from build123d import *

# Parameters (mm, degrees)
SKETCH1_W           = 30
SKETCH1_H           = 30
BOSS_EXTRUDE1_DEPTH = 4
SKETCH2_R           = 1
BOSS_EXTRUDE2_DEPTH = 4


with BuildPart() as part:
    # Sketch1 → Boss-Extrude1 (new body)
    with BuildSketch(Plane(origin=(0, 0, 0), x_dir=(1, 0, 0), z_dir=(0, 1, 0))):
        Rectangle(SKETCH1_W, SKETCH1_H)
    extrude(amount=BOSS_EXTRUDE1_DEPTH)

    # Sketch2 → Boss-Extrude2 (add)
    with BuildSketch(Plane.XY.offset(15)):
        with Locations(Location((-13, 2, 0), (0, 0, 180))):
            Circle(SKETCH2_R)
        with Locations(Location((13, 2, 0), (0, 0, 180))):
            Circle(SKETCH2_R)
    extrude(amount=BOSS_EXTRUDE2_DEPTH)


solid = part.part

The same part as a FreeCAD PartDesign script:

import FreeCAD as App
import Part
import Sketcher
from FreeCAD import Vector


def add_polygon(sketch, points):
    """Adds a closed chain of lines whose ends are joined by coincident constraints."""
    first, n = sketch.GeometryCount, len(points)
    for a, b in zip(points, points[1:] + points[:1]):
        sketch.addGeometry(Part.LineSegment(App.Vector(*a, 0), App.Vector(*b, 0)), False)
    for i in range(n):
        sketch.addConstraint(Sketcher.Constraint("Coincident", first + i, 2, first + (i + 1) % n, 1))

doc = App.newDocument("Part")
body = doc.addObject("PartDesign::Body", "Body")

sketch1 = body.newObject("Sketcher::SketchObject", "Sketch")
sketch1.AttachmentSupport = (doc.getObject("XZ_Plane"), [""])
sketch1.MapMode = "FlatFace"
add_polygon(sketch1, [(-15, -15), (-15, 15), (15, 15), (15, -15)])
sketch1.addConstraint([
    Sketcher.Constraint("Vertical", 0),
    Sketcher.Constraint("Horizontal", 1),
    Sketcher.Constraint("Vertical", 2),
    Sketcher.Constraint("Horizontal", 3),
    Sketcher.Constraint("Symmetric", 0, 2, 2, 2, -1, 1),
    Sketcher.Constraint("Equal", 3, 0),
    Sketcher.Constraint("DistanceX", 1, 1, 1, 2, 30.0),
])
pad1 = body.newObject("PartDesign::Pad", "Pad")
pad1.Profile = sketch1
pad1.Length = 4
pad1.Reversed = True

sketch2 = body.newObject("Sketcher::SketchObject", "Sketch001")
sketch2.AttachmentSupport = (doc.getObject("XY_Plane"), [""])
sketch2.MapMode = "FlatFace"
sketch2.AttachmentOffset = App.Placement(Vector(0, 0, 15), App.Rotation())
sketch2.addGeometry([
    Part.Circle(Vector(-13, 2, 0), Vector(0, 0, 1), 1),
    Part.Circle(Vector(13, 2, 0), Vector(0, 0, 1), 1),
], False)
sketch2.addConstraint([
    Sketcher.Constraint("Equal", 0, 1),
    Sketcher.Constraint("Symmetric", 0, 3, 1, 3, -2),
    Sketcher.Constraint("Diameter", 0, 2.0),
    Sketcher.Constraint("DistanceX", 0, 3, -1, 1, 13.0),
    Sketcher.Constraint("DistanceY", -1, 1, 0, 3, 2.0),
])
pad2 = body.newObject("PartDesign::Pad", "Pad001")
pad2.Profile = sketch2
pad2.Length = 4

doc.recompute()
